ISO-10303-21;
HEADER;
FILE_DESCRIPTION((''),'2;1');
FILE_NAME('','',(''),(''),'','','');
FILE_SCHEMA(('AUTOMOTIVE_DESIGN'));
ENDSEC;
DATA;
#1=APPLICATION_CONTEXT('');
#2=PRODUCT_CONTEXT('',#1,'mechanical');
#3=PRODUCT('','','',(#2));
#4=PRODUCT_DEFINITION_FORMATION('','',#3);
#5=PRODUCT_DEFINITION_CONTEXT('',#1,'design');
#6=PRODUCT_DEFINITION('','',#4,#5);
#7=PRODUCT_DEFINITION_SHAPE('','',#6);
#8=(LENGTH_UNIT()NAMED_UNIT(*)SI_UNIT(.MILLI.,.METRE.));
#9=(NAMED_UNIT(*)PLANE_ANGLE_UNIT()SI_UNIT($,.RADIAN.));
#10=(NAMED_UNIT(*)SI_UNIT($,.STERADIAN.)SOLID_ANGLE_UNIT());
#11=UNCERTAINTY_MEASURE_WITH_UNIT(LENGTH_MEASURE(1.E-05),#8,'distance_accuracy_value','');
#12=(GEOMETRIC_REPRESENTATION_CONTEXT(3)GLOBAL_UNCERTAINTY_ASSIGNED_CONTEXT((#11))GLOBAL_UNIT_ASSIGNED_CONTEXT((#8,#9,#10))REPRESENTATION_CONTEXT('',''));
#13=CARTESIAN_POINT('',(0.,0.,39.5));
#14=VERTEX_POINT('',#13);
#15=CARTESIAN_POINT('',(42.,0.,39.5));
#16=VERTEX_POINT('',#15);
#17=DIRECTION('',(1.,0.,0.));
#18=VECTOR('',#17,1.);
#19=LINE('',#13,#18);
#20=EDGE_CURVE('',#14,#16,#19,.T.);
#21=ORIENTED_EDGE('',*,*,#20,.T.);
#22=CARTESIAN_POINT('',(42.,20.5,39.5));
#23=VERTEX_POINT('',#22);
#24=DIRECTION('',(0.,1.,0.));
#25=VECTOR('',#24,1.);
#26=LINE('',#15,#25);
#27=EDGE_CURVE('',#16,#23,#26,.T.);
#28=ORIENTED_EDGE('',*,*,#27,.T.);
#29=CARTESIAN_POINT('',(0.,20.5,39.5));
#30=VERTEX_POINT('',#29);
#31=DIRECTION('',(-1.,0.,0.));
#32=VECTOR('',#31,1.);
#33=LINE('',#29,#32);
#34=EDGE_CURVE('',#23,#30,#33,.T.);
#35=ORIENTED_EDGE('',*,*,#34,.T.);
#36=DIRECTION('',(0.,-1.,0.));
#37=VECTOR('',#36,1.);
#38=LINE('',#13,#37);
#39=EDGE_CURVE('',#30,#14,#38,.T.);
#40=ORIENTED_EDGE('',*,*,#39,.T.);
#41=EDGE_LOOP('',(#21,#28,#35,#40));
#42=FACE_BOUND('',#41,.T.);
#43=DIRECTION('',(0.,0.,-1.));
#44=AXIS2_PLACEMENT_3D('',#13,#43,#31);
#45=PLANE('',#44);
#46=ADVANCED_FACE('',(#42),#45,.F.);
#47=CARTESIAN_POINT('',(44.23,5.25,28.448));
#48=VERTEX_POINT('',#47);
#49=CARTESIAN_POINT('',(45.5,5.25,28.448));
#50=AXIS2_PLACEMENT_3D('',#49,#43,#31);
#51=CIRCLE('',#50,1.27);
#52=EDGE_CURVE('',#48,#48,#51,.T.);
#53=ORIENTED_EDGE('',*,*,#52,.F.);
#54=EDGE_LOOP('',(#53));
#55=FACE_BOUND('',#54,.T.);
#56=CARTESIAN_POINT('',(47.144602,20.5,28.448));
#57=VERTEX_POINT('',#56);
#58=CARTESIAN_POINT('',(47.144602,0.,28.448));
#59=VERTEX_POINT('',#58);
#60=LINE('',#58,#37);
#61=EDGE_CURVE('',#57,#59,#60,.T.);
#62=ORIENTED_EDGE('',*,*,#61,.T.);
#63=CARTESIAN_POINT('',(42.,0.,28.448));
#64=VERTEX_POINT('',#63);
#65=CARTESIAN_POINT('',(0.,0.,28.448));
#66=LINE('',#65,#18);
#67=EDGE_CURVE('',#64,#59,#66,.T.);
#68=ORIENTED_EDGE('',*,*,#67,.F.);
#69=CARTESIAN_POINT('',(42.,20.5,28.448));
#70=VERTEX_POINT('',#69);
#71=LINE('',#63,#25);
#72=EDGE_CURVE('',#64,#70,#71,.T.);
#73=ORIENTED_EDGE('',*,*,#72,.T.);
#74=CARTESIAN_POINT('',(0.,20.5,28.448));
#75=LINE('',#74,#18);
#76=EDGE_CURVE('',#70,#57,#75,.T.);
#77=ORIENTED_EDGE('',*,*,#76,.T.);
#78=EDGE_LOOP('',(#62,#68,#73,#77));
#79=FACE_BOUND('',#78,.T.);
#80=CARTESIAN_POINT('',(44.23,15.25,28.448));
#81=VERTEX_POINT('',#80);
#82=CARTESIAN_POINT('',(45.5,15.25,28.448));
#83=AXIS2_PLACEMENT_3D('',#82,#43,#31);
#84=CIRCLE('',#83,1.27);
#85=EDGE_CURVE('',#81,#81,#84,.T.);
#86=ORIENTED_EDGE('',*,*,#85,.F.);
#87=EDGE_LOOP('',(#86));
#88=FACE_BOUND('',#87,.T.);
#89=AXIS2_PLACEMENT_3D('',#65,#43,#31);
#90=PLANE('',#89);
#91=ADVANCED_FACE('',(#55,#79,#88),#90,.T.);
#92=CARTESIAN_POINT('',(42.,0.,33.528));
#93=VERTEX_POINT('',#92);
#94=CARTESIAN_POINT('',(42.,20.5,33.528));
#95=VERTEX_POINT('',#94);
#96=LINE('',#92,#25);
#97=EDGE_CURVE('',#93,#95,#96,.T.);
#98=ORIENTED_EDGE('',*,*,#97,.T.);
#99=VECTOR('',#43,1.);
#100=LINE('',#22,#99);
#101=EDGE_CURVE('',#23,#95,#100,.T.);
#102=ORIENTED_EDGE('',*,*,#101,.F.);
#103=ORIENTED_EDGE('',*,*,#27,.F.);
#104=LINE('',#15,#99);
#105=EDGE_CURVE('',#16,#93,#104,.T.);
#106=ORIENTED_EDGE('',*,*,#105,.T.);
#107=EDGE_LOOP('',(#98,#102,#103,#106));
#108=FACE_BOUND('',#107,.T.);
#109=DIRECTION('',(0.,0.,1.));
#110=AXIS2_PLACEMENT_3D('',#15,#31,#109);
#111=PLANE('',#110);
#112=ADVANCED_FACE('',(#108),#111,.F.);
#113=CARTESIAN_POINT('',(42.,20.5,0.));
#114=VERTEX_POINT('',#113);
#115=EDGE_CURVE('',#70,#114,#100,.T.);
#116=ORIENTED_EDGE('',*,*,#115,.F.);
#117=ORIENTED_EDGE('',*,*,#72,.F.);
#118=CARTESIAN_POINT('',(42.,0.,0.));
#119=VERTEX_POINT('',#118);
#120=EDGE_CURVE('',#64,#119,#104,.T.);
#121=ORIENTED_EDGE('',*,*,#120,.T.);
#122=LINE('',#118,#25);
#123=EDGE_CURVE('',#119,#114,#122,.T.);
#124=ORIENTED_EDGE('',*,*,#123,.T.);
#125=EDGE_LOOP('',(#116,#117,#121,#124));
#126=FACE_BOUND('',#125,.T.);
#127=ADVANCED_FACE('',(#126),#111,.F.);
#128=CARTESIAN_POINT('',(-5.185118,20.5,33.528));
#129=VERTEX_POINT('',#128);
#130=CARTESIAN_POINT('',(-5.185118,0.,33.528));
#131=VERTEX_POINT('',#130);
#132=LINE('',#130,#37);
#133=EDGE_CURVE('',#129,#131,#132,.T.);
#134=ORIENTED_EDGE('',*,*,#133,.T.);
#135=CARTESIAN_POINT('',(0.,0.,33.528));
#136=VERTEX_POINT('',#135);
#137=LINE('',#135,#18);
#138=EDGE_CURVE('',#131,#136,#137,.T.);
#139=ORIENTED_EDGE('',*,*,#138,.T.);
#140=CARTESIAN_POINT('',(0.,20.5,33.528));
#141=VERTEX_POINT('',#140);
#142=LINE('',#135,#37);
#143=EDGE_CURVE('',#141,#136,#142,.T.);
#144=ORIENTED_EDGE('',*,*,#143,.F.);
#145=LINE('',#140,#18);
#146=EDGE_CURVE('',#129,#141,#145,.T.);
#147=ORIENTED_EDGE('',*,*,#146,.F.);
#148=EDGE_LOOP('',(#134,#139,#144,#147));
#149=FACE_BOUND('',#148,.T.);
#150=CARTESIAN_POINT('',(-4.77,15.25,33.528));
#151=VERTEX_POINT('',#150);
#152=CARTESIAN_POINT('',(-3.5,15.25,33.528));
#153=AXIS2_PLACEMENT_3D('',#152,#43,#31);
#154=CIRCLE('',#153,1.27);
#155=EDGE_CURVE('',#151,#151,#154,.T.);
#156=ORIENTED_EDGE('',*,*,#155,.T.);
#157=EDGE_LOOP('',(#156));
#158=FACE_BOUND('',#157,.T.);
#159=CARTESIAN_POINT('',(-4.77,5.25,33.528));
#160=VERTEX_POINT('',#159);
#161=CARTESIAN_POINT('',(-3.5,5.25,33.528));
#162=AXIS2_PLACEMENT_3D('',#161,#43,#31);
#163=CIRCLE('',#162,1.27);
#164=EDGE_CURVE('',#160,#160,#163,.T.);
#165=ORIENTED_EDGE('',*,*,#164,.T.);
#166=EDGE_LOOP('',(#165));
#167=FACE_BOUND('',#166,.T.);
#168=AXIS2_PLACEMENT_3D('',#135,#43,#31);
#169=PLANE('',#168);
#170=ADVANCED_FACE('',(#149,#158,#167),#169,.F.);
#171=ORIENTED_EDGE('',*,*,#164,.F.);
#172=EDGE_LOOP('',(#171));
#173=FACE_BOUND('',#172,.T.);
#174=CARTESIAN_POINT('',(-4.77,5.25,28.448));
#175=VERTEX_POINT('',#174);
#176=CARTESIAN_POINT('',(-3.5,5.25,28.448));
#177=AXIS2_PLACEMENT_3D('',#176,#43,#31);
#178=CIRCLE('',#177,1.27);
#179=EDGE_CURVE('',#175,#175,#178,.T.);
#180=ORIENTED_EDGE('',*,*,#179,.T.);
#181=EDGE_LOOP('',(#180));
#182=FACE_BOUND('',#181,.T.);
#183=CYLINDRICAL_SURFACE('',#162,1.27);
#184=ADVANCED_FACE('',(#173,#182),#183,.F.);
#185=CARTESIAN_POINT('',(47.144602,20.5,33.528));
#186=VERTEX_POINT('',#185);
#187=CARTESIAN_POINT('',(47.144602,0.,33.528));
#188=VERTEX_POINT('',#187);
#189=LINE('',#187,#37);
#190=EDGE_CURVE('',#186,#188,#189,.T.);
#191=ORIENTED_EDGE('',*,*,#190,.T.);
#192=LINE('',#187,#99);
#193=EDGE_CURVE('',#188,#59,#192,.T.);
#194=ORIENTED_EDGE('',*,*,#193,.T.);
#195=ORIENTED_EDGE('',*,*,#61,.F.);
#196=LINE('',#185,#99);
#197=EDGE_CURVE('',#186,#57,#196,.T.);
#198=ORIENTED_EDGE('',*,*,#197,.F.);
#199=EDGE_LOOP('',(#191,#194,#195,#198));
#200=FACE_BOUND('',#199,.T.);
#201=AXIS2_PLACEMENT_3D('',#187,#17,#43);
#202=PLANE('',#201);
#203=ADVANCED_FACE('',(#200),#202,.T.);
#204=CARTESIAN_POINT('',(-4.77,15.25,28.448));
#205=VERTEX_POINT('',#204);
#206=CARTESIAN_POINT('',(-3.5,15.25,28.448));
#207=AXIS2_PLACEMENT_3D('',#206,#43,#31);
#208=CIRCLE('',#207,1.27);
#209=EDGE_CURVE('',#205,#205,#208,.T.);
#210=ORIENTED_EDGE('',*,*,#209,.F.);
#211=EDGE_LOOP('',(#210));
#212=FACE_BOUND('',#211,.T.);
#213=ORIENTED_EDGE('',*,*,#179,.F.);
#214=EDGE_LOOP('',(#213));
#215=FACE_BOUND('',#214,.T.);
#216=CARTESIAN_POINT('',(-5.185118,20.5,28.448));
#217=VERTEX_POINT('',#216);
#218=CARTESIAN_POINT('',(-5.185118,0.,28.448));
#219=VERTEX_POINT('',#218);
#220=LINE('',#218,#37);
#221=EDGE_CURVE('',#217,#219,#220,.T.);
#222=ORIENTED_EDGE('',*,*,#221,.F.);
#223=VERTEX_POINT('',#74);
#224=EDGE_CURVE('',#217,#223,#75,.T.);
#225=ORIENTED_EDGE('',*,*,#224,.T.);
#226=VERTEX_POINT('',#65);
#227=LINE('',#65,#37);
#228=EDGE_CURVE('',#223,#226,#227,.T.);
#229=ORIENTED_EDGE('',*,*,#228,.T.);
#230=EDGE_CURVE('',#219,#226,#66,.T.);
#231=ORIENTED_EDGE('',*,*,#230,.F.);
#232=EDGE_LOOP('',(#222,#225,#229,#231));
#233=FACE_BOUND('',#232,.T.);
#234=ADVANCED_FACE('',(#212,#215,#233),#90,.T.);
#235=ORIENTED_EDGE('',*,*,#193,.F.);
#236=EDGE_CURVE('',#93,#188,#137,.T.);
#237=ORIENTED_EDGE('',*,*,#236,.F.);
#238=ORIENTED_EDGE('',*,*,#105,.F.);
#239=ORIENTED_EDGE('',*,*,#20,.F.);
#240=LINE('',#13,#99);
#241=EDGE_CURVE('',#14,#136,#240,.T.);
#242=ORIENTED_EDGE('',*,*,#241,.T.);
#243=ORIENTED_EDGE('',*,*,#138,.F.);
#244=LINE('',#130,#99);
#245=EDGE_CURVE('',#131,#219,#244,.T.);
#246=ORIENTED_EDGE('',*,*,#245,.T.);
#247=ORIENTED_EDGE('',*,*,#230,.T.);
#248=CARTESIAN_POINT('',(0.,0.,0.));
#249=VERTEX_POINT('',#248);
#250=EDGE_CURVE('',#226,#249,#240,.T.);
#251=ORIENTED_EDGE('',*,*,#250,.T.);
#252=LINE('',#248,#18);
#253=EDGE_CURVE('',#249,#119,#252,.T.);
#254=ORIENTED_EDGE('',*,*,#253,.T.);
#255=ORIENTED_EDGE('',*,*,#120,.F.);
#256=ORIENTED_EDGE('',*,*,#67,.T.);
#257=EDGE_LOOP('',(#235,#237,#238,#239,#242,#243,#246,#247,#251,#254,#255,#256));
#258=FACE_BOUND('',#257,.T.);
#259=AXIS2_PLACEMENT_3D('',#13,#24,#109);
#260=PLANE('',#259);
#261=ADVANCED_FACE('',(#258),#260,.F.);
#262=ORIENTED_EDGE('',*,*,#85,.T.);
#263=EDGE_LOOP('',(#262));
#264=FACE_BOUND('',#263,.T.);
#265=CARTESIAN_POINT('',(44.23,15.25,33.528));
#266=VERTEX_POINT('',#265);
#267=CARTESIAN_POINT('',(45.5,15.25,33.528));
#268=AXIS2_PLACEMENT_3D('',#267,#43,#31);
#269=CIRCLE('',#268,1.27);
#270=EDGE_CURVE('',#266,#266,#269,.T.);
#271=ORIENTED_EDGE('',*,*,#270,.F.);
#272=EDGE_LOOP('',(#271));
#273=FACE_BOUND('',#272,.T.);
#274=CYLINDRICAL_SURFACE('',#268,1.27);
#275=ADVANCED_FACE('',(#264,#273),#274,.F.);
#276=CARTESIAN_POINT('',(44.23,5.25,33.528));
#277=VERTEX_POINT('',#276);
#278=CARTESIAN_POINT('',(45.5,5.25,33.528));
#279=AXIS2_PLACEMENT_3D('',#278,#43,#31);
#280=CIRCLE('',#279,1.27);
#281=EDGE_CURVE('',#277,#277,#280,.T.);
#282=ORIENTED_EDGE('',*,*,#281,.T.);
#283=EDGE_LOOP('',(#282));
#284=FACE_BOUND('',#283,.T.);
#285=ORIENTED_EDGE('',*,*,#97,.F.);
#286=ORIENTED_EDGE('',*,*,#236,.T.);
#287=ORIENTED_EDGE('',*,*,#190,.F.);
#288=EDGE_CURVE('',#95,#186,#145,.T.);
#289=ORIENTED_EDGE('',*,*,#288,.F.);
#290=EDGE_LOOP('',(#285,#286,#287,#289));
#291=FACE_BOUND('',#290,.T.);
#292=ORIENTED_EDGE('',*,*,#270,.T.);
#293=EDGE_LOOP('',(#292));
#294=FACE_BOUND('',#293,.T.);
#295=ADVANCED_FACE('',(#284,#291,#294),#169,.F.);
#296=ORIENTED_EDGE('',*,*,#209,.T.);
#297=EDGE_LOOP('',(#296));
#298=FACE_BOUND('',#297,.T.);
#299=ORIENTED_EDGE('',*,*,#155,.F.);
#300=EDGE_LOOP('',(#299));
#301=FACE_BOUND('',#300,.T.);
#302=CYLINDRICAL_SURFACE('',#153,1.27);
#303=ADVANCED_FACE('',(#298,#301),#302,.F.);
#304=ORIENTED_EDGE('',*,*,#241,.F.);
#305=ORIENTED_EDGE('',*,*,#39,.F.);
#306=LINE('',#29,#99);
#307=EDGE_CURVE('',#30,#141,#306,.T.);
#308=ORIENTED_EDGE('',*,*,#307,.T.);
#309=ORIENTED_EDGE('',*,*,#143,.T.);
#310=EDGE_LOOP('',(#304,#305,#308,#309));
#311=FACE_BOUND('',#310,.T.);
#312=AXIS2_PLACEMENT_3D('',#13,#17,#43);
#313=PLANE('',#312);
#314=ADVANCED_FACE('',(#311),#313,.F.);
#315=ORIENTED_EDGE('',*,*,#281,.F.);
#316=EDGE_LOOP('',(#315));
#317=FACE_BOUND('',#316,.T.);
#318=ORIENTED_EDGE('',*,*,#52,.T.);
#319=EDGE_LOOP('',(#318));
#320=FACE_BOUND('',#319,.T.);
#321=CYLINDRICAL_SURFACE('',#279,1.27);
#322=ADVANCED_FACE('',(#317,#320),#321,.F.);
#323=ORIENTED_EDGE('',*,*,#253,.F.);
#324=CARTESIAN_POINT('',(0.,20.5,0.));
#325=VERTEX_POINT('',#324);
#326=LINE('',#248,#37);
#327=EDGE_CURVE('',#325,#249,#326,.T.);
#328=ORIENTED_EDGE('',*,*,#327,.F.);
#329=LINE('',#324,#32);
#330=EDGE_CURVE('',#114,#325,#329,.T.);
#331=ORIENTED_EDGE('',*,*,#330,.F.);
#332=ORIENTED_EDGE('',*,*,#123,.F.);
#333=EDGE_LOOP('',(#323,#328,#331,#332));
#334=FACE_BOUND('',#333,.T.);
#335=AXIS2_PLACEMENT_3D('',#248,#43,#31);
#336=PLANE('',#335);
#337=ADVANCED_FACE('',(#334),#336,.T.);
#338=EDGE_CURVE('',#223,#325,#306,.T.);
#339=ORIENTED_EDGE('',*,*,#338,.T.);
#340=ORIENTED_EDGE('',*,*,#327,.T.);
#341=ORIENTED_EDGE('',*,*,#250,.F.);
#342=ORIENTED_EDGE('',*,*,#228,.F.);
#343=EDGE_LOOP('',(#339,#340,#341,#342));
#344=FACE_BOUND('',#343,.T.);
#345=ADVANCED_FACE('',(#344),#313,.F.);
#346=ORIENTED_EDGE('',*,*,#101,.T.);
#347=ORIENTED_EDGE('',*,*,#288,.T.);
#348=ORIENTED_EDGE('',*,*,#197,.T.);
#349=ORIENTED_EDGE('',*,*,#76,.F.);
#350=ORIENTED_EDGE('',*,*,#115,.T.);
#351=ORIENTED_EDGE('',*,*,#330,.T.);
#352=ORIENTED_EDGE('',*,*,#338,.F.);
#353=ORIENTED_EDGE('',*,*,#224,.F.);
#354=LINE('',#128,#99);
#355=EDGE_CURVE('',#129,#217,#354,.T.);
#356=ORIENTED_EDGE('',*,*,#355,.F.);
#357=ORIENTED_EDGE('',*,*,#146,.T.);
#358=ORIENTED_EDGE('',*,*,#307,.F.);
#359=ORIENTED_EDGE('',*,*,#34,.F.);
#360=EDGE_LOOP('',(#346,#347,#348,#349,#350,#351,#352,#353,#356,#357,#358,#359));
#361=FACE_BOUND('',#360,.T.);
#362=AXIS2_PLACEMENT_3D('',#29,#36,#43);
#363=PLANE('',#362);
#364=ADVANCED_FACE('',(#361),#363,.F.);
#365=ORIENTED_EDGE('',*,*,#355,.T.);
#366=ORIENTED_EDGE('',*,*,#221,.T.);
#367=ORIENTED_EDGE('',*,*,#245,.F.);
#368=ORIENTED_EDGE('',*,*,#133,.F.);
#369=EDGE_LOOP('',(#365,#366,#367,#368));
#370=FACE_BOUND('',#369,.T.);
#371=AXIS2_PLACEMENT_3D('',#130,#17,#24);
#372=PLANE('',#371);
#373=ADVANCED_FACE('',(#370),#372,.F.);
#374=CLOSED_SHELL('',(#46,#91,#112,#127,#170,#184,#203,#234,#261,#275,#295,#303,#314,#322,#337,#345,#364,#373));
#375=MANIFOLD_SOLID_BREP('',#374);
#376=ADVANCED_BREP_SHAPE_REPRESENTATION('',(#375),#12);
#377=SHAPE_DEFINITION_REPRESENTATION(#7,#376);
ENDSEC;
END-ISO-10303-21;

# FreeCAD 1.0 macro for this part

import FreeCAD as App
import Part
import Sketcher
Q = App.Units.Quantity

doc = App.newDocument("Part")
body = doc.addObject("PartDesign::Body", "Body")

# Sketch on XY plane
sketch1 = body.newObject("Sketcher::SketchObject", "Sketch")
sketch1.AttachmentSupport = (doc.getObject("XY_Plane"), [""])
sketch1.MapMode = "FlatFace"
sketch1.addGeometry(Part.LineSegment(App.Vector(0, 20, 0), App.Vector(0, 0, 0)), False)
sketch1.addGeometry(Part.LineSegment(App.Vector(0, 0, 0), App.Vector(42, 0, 0)), False)
sketch1.addGeometry(Part.LineSegment(App.Vector(42, 0, 0), App.Vector(42, 20, 0)), False)
sketch1.addGeometry(Part.LineSegment(App.Vector(42, 20, 0), App.Vector(0, 20, 0)), False)
sketch1.addConstraint(Sketcher.Constraint("Coincident", 0, 2, 1, 1))
sketch1.addConstraint(Sketcher.Constraint("Coincident", 1, 2, 2, 1))
sketch1.addConstraint(Sketcher.Constraint("Coincident", 2, 2, 3, 1))
sketch1.addConstraint(Sketcher.Constraint("Coincident", 3, 2, 0, 1))
sketch1.addConstraint(Sketcher.Constraint("Vertical", 0))
sketch1.addConstraint(Sketcher.Constraint("Horizontal", 1))
sketch1.addConstraint(Sketcher.Constraint("Vertical", 2))
sketch1.addConstraint(Sketcher.Constraint("Horizontal", 3))
sketch1.addConstraint(Sketcher.Constraint("Coincident", 0, 2, -1, 1))
sketch1.addConstraint(Sketcher.Constraint("DistanceX", 1, 1, 1, 2, Q("42 mm")))
sketch1.addConstraint(Sketcher.Constraint("DistanceY", 0, 2, 0, 1, Q("20.5 mm")))
pad1 = body.newObject("PartDesign::Pad", "Pad")
pad1.Profile = sketch1
pad1.Length = 39.5

# Sketch on XY plane
sketch2 = body.newObject("Sketcher::SketchObject", "Sketch001")
sketch2.AttachmentSupport = (doc.getObject("XY_Plane"), [""])
sketch2.MapMode = "FlatFace"
sketch2.AttachmentOffset = App.Placement(App.Vector(0, 0, 28.448), App.Rotation())
sketch2.addGeometry(Part.LineSegment(App.Vector(0, 20.5, 0), App.Vector(0, 0, 0)), False)
sketch2.addGeometry(Part.LineSegment(App.Vector(0, 0, 0), App.Vector(-5.2, 0, 0)), False)
sketch2.addGeometry(Part.LineSegment(App.Vector(-5.2, 0, 0), App.Vector(-5.2, 20.5, 0)), False)
sketch2.addGeometry(Part.LineSegment(App.Vector(-5.2, 20.5, 0), App.Vector(0, 20.5, 0)), False)
sketch2.addGeometry(Part.Circle(App.Vector(-3.5, 5.2, 0), App.Vector(0, 0, 1), 1.3), False)
sketch2.addGeometry(Part.Circle(App.Vector(-3.5, 15.2, 0), App.Vector(0, 0, 1), 1.3), False)
sketch2.addGeometry(Part.LineSegment(App.Vector(47.1, 20.5, 0), App.Vector(47.1, 0, 0)), False)
sketch2.addGeometry(Part.LineSegment(App.Vector(47.1, 0, 0), App.Vector(42, 0, 0)), False)
sketch2.addGeometry(Part.LineSegment(App.Vector(42, 0, 0), App.Vector(42, 20.5, 0)), False)
sketch2.addGeometry(Part.LineSegment(App.Vector(42, 20.5, 0), App.Vector(47.1, 20.5, 0)), False)
sketch2.addGeometry(Part.Circle(App.Vector(45.5, 5.2, 0), App.Vector(0, 0, 1), 1.3), False)
sketch2.addGeometry(Part.Circle(App.Vector(45.5, 15.2, 0), App.Vector(0, 0, 1), 1.3), False)
sketch2.addConstraint(Sketcher.Constraint("Coincident", 0, 2, 1, 1))
sketch2.addConstraint(Sketcher.Constraint("Coincident", 1, 2, 2, 1))
sketch2.addConstraint(Sketcher.Constraint("Coincident", 2, 2, 3, 1))
sketch2.addConstraint(Sketcher.Constraint("Coincident", 3, 2, 0, 1))
sketch2.addConstraint(Sketcher.Constraint("Coincident", 6, 2, 7, 1))
sketch2.addConstraint(Sketcher.Constraint("Coincident", 7, 2, 8, 1))
sketch2.addConstraint(Sketcher.Constraint("Coincident", 8, 2, 9, 1))
sketch2.addConstraint(Sketcher.Constraint("Coincident", 9, 2, 6, 1))
sketch2.addConstraint(Sketcher.Constraint("Vertical", 0))
sketch2.addConstraint(Sketcher.Constraint("Horizontal", 1))
sketch2.addConstraint(Sketcher.Constraint("Vertical", 2))
sketch2.addConstraint(Sketcher.Constraint("Horizontal", 3))
sketch2.addConstraint(Sketcher.Constraint("Vertical", 6))
sketch2.addConstraint(Sketcher.Constraint("Horizontal", 7))
sketch2.addConstraint(Sketcher.Constraint("Vertical", 8))
sketch2.addConstraint(Sketcher.Constraint("Horizontal", 9))
sketch2.addConstraint(Sketcher.Constraint("Coincident", 0, 2, -1, 1))
sketch2.addConstraint(Sketcher.Constraint("Equal", 4, 5))
sketch2.addConstraint(Sketcher.Constraint("Equal", 5, 10))
sketch2.addConstraint(Sketcher.Constraint("Equal", 10, 11))
sketch2.addConstraint(Sketcher.Constraint("PointOnObject", 6, 2, -1))
sketch2.addConstraint(Sketcher.Constraint("Horizontal", 4, 3, 10, 3))
sketch2.addConstraint(Sketcher.Constraint("Horizontal", 5, 3, 11, 3))
sketch2.addConstraint(Sketcher.Constraint("Horizontal", 3, 2, 8, 2))
sketch2.addConstraint(Sketcher.Constraint("Vertical", 4, 3, 5, 3))
sketch2.addConstraint(Sketcher.Constraint("Vertical", 10, 3, 11, 3))
sketch2.addConstraint(Sketcher.Constraint("Diameter", 4, Q("2.54 mm")))
sketch2.addConstraint(Sketcher.Constraint("DistanceY", 0, 2, 0, 1, Q("20.5 mm")))
sketch2.addConstraint(Sketcher.Constraint("DistanceX", -1, 1, 7, 2, Q("42 mm")))
sketch2.addConstraint(Sketcher.Constraint("DistanceY", 4, 3, 5, 3, Q("10 mm")))
sketch2.addConstraint(Sketcher.Constraint("DistanceX", 4, 3, 10, 3, Q("49 mm")))
sketch2.addConstraint(Sketcher.Constraint("DistanceX", 4, 3, -1, 1, Q("3.5 mm")))
sketch2.addConstraint(Sketcher.Constraint("DistanceY", -1, 1, 4, 3, Q("5.25 mm")))
sketch2.addConstraint(Sketcher.Constraint("DistanceX", 1, 2, 1, 1, Q("5.185118 mm")))
sketch2.addConstraint(Sketcher.Constraint("DistanceX", 7, 2, 7, 1, Q("5.144602 mm")))
pad2 = body.newObject("PartDesign::Pad", "Pad001")
pad2.Profile = sketch2
pad2.Length = 5.08

doc.recompute()
